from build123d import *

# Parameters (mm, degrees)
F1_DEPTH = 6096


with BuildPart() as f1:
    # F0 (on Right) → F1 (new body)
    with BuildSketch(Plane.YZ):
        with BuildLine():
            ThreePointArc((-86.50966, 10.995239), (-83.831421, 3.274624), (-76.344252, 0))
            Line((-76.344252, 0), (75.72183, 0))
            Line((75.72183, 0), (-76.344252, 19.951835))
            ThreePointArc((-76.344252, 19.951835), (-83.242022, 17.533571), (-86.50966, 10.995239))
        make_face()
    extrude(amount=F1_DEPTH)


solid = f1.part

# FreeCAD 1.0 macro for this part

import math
import FreeCAD as App
import Part
import Sketcher
from FreeCAD import Vector
Q = App.Units.Quantity

doc = App.newDocument("Part")
body = doc.addObject("PartDesign::Body", "Body")

sketch1 = doc.addObject("Sketcher::SketchObject", "Sketch")
body.addObject(sketch1)
sketch1.AttachmentSupport = (doc.YZ_Plane, [""])
sketch1.MapMode = "FlatFace"
sketch1.addGeometry([
    Part.ArcOfCircle(Part.Circle(Vector(-76.344252, 10.196723, 0), Vector(0, 0, 1), 10.196723), math.radians(175.508507), math.radians(269.999999)),
    Part.LineSegment(Vector(-76.344252, 0, 0), Vector(75.72183, 0, 0)),
    Part.LineSegment(Vector(75.72183, 0, 0), Vector(-76.344252, 19.951835, 0)),
    Part.ArcOfCircle(Part.Circle(Vector(-76.809856, 10.233297, 0), Vector(0, 0, 1), 9.729685), math.radians(87.257125), math.radians(175.508509)),
], False)
sketch1.addConstraint([
    Sketcher.Constraint("Tangent", 0, 2, 1, 1),
    Sketcher.Constraint("Coincident", 1, 2, 2, 1),
    Sketcher.Constraint("Coincident", 2, 2, 3, 1),
    Sketcher.Constraint("Tangent", 3, 2, 0, 1),
    Sketcher.Constraint("Horizontal", 1),
    Sketcher.Constraint("PointOnObject", 0, 2, -1),
    Sketcher.Constraint("Vertical", 0, 2, 2, 2),
    Sketcher.Constraint("Radius", 0, 10.196723),
    Sketcher.Constraint("Radius", 3, 9.729685),
    Sketcher.Constraint("DistanceX", 1, 1, 1, 2, 152.066082),
    Sketcher.Constraint("DistanceX", 0, 3, -1, 1, 76.344252),
    Sketcher.Constraint("DistanceX", 3, 2, -1, 1, 86.50966),
])
pad1 = doc.addObject("PartDesign::Pad", "Pad")
body.addObject(pad1)
pad1.Profile = sketch1
pad1.Length = Q("240 in")

doc.recompute()
